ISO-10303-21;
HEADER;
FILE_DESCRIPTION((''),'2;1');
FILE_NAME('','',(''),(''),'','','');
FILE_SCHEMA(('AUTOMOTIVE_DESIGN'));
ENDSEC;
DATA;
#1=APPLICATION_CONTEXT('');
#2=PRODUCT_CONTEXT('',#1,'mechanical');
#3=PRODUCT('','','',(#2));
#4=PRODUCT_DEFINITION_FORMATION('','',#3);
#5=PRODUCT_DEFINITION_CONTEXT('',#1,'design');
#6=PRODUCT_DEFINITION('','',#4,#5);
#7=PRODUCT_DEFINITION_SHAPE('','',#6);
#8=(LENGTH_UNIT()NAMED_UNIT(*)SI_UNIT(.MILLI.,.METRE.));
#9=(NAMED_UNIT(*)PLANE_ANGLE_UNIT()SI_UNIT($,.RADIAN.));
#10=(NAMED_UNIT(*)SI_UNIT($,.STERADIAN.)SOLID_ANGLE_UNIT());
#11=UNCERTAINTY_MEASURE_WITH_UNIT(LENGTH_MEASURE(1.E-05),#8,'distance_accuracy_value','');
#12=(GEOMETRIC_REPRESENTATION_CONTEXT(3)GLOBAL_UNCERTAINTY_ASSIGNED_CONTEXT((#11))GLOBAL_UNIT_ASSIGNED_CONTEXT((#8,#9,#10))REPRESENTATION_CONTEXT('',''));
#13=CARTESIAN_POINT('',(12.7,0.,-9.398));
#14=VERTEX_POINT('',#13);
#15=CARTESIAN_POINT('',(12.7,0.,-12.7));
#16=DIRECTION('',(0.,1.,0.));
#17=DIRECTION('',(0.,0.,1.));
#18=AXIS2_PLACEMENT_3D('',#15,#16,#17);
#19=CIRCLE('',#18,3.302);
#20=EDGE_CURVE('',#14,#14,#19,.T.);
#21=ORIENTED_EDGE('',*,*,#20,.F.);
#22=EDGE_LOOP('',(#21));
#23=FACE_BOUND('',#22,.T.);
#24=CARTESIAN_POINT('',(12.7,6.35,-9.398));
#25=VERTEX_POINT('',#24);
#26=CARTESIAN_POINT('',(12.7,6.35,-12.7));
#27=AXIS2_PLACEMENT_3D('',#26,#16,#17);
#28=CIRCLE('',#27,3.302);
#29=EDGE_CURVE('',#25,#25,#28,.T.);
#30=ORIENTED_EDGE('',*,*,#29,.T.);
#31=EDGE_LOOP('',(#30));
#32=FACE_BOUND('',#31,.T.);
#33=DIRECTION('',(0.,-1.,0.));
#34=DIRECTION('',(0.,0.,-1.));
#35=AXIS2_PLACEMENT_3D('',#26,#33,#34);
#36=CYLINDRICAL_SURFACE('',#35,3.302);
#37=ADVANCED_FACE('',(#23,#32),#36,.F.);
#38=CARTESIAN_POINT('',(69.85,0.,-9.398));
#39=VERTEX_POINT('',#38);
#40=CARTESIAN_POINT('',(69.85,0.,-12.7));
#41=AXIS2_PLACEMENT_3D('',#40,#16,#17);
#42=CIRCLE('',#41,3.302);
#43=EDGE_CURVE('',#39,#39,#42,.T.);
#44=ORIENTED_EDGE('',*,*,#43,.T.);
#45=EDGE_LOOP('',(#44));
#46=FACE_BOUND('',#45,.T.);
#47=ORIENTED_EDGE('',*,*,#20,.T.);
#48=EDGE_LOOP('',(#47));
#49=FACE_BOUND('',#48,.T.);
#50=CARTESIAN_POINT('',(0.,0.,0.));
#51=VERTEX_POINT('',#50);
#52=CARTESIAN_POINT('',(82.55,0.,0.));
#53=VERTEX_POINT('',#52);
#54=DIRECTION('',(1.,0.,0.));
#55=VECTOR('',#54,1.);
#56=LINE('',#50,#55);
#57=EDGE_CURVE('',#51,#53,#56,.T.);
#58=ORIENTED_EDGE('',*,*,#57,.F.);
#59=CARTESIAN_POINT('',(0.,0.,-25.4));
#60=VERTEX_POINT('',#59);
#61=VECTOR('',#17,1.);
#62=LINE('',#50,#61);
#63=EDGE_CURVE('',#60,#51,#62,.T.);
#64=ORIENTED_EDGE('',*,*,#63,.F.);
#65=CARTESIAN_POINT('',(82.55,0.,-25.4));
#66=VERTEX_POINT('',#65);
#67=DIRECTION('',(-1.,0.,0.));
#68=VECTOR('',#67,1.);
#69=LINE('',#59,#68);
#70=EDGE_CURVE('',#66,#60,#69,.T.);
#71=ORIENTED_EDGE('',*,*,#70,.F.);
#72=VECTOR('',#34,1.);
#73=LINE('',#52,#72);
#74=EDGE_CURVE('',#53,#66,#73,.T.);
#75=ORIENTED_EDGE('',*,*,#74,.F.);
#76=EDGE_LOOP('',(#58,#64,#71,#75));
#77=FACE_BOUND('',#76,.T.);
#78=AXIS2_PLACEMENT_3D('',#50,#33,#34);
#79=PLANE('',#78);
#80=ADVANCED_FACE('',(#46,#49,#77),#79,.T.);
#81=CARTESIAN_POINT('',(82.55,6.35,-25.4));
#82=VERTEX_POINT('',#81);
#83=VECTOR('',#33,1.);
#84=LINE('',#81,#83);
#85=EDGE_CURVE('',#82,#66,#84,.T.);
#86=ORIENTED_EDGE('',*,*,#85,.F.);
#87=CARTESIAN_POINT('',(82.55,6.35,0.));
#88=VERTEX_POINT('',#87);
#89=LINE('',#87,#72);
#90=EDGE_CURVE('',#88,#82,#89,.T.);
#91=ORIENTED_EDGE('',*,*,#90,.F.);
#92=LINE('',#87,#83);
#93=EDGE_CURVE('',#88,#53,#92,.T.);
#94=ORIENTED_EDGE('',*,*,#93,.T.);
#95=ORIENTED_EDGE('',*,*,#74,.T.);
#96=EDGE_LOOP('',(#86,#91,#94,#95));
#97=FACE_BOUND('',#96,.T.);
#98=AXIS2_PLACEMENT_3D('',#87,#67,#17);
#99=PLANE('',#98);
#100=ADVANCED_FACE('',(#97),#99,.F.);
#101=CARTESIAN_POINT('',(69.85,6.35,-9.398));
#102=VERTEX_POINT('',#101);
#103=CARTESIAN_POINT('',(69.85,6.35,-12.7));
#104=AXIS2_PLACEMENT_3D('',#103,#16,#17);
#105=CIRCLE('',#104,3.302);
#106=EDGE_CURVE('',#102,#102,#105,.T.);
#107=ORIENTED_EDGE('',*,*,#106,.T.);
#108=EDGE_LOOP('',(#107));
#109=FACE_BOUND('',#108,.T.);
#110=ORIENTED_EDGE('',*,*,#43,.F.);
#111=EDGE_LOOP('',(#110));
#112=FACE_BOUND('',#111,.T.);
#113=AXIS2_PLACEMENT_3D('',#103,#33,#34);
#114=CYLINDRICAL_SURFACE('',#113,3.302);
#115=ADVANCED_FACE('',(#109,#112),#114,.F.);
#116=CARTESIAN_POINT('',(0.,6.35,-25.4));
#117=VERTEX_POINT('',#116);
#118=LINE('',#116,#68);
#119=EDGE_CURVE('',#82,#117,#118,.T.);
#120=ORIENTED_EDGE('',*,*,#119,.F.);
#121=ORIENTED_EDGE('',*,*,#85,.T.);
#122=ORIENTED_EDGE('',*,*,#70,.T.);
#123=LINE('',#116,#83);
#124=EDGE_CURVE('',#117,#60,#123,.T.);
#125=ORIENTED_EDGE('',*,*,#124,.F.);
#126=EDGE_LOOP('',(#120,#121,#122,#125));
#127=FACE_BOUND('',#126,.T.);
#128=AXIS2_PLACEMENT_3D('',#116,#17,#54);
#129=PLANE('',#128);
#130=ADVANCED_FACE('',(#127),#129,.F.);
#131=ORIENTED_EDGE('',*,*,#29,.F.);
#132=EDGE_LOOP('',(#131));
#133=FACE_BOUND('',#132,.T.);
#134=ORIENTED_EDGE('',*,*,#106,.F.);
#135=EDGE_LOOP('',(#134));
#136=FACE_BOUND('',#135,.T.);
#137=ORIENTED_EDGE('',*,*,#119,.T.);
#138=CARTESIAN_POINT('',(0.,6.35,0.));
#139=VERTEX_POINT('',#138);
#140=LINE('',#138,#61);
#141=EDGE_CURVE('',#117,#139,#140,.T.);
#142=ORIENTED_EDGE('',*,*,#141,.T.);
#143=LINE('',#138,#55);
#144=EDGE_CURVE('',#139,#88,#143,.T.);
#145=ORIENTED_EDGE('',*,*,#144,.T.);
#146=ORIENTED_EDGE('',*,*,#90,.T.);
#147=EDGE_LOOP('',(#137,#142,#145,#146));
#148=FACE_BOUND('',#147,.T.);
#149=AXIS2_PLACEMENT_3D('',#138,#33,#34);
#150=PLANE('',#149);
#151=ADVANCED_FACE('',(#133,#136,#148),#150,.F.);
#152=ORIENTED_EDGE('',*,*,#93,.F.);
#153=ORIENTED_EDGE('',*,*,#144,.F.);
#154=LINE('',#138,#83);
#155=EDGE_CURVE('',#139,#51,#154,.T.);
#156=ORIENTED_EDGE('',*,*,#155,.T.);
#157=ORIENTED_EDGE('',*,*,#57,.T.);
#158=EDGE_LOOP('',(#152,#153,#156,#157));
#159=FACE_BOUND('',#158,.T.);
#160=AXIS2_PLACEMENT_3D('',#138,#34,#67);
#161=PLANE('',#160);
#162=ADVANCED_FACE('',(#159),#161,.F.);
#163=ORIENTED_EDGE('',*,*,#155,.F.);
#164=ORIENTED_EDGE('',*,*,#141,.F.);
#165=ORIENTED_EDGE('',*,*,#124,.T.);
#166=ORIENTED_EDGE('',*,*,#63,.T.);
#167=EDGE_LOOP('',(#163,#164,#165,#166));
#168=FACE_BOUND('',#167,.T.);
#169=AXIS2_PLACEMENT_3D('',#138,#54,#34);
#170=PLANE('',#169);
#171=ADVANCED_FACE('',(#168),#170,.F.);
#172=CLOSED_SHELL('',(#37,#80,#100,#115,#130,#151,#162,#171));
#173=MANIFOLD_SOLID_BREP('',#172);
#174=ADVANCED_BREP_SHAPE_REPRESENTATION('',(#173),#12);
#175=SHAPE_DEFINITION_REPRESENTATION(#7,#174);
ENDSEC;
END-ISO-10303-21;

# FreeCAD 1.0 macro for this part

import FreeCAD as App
import Part
import Sketcher

V = App.Vector
Q = App.Units.Quantity

doc = App.newDocument("Part")
body = doc.addObject("PartDesign::Body", "Body")

sketch1 = body.newObject("Sketcher::SketchObject", "Sketch")
sketch1.AttachmentSupport = (doc.getObject("XZ_Plane"), [""])
sketch1.MapMode = "FlatFace"
sketch1.addGeometry([
    Part.LineSegment(V(0, -25.4, 0), V(0, 0, 0)),
    Part.LineSegment(V(0, 0, 0), V(82.5, 0, 0)),
    Part.LineSegment(V(82.5, 0, 0), V(82.5, -25.4, 0)),
    Part.LineSegment(V(82.5, -25.4, 0), V(0, -25.4, 0)),
    Part.Circle(V(12.7, -12.7, 0), V(0, 0, 1), 3.3),
    Part.Circle(V(69.8, -12.7, 0), V(0, 0, 1), 3.3),
], False)
sketch1.addConstraint([
    Sketcher.Constraint("Coincident", 0, 2, 1, 1),
    Sketcher.Constraint("Coincident", 1, 2, 2, 1),
    Sketcher.Constraint("Coincident", 2, 2, 3, 1),
    Sketcher.Constraint("Coincident", 3, 2, 0, 1),
    Sketcher.Constraint("Vertical", 0),
    Sketcher.Constraint("Horizontal", 1),
    Sketcher.Constraint("Vertical", 2),
    Sketcher.Constraint("Horizontal", 3),
    Sketcher.Constraint("Coincident", 0, 2, -1, 1),
    Sketcher.Constraint("Equal", 4, 5),
    Sketcher.Constraint("Horizontal", 4, 3, 5, 3),
    Sketcher.Constraint("Diameter", 4, Q("0.26 in")),
    Sketcher.Constraint("DistanceY", 0, 1, 0, 2, Q("1 in")),
    Sketcher.Constraint("DistanceX", 1, 1, 1, 2, Q("3.25 in")),
    Sketcher.Constraint("DistanceX", -1, 1, 4, 3, Q("0.5 in")),
    Sketcher.Constraint("DistanceY", 4, 3, -1, 1, Q("0.5 in")),
    Sketcher.Constraint("DistanceX", 5, 3, 1, 2, Q("0.5 in")),
])
pad1 = body.newObject("PartDesign::Pad", "Pad")
pad1.Profile = sketch1
pad1.Length = Q("0.25 in")
pad1.Reversed = True

doc.recompute()
